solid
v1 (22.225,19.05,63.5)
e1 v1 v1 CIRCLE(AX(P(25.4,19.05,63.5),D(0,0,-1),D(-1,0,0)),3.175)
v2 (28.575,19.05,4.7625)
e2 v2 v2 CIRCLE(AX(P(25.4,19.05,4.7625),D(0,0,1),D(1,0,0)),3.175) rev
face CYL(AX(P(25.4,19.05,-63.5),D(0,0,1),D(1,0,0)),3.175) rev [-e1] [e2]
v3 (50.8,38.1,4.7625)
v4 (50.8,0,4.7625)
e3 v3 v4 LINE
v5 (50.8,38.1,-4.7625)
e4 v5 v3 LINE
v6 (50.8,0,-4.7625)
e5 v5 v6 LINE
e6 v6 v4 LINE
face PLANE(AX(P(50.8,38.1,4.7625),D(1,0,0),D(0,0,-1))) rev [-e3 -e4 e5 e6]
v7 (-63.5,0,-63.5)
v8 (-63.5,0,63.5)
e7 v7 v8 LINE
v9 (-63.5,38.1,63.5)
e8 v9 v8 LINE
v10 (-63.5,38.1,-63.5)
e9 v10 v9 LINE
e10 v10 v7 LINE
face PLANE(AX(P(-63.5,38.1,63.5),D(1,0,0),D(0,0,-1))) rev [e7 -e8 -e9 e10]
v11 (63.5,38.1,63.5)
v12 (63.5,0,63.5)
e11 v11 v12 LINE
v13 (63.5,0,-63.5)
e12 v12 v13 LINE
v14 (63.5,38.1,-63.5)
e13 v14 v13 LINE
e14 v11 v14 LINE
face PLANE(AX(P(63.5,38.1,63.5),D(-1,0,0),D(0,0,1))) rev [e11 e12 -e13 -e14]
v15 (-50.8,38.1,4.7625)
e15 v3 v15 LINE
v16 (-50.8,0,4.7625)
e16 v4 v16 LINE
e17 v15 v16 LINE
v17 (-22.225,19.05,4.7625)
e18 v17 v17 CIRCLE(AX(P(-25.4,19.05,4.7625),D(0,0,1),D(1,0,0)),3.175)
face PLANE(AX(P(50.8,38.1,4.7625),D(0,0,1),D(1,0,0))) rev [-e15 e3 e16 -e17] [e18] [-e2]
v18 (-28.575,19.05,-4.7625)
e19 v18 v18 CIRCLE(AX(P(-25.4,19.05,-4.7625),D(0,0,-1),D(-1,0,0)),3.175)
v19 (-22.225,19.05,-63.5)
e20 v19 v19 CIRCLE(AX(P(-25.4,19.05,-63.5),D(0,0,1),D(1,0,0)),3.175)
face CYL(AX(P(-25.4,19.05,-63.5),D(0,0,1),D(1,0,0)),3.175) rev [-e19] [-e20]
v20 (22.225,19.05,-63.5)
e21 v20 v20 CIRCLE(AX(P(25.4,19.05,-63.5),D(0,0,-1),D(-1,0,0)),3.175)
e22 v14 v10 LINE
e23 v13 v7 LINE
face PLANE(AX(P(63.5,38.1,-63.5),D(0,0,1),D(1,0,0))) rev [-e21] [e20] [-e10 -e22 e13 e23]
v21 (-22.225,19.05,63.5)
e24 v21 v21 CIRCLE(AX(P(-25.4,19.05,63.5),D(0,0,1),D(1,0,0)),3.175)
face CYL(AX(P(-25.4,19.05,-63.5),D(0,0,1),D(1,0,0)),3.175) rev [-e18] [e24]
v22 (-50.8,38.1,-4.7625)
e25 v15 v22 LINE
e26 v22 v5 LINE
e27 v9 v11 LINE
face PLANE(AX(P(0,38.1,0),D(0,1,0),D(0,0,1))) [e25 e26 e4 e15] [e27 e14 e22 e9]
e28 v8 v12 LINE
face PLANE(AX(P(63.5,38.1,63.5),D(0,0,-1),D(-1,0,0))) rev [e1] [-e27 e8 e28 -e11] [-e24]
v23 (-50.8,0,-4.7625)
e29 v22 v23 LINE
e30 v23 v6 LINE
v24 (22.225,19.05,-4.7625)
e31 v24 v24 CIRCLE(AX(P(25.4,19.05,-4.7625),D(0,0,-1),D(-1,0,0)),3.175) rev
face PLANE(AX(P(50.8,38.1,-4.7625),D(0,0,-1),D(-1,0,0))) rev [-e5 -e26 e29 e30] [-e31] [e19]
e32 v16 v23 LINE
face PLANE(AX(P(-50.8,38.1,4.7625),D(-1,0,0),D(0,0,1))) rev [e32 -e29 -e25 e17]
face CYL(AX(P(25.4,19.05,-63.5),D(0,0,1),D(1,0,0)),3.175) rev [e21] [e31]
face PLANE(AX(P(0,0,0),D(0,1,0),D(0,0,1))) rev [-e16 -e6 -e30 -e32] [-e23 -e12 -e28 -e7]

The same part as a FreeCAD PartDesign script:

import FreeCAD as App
import Part
import Sketcher
Q = App.Units.Quantity


def add_polygon(sketch, points):
    """Adds a closed chain of lines whose ends are joined by coincident constraints."""
    first, n = sketch.GeometryCount, len(points)
    for a, b in zip(points, points[1:] + points[:1]):
        sketch.addGeometry(Part.LineSegment(App.Vector(*a, 0), App.Vector(*b, 0)), False)
    for i in range(n):
        sketch.addConstraint(Sketcher.Constraint("Coincident", first + i, 2, first + (i + 1) % n, 1))

doc = App.newDocument("Part")
body = doc.addObject("PartDesign::Body", "Body")

sketch1 = body.newObject("Sketcher::SketchObject", "Sketch")
sketch1.AttachmentSupport = (doc.getObject("XZ_Plane"), [""])
sketch1.MapMode = "FlatFace"
add_polygon(sketch1, [(-64, -64), (-64, 64), (64, 64), (64, -64)])
sketch1.addConstraint(Sketcher.Constraint("Vertical", 0))
sketch1.addConstraint(Sketcher.Constraint("Horizontal", 1))
sketch1.addConstraint(Sketcher.Constraint("Vertical", 2))
sketch1.addConstraint(Sketcher.Constraint("Horizontal", 3))
sketch1.addConstraint(Sketcher.Constraint("Symmetric", 0, 2, 2, 2, -1, 1))
sketch1.addConstraint(Sketcher.Constraint("Equal", 3, 0))
sketch1.addConstraint(Sketcher.Constraint("DistanceX", 1, 1, 1, 2, Q("5 in")))
pad1 = body.newObject("PartDesign::Pad", "Pad")
pad1.Profile = sketch1
pad1.Length = Q("1.5 in")
pad1.Reversed = True

sketch2 = body.newObject("Sketcher::SketchObject", "Sketch001")
sketch2.AttachmentSupport = (doc.getObject("XZ_Plane"), [""])
sketch2.MapMode = "FlatFace"
add_polygon(sketch2, [(51, -5), (51, 5), (-51, 5), (-51, -5)])
sketch2.addConstraint(Sketcher.Constraint("Vertical", 0))
sketch2.addConstraint(Sketcher.Constraint("Horizontal", 1))
sketch2.addConstraint(Sketcher.Constraint("Vertical", 2))
sketch2.addConstraint(Sketcher.Constraint("Horizontal", 3))
sketch2.addConstraint(Sketcher.Constraint("Symmetric", 0, 2, 2, 2, -1, 1))
sketch2.addConstraint(Sketcher.Constraint("DistanceX", 1, 2, 1, 1, Q("4 in")))
sketch2.addConstraint(Sketcher.Constraint("DistanceY", 0, 1, 0, 2, Q("0.375 in")))
pocket1 = body.newObject("PartDesign::Pocket", "Pocket")
pocket1.Profile = sketch2
pocket1.Type = "ThroughAll"

sketch3 = body.newObject("Sketcher::SketchObject", "Sketch002")
sketch3.AttachmentSupport = (doc.getObject("XY_Plane"), [""])
sketch3.MapMode = "FlatFace"
sketch3.AttachmentOffset = App.Placement(App.Vector(0, 0, 2.5 * 25.4), App.Rotation())
sketch3.addGeometry(Part.Circle(App.Vector(-25.4, 19.1, 0), App.Vector(0, 0, 1), 3.2), False)
sketch3.addGeometry(Part.Circle(App.Vector(25.4, 19.1, 0), App.Vector(0, 0, 1), 3.2), False)
sketch3.addConstraint(Sketcher.Constraint("Equal", 0, 1))
sketch3.addConstraint(Sketcher.Constraint("Symmetric", 0, 3, 1, 3, -2))
sketch3.addConstraint(Sketcher.Constraint("Diameter", 0, Q("0.25 in")))
sketch3.addConstraint(Sketcher.Constraint("DistanceX", 0, 3, -1, 1, Q("1 in")))
sketch3.addConstraint(Sketcher.Constraint("DistanceY", -1, 1, 0, 3, Q("0.75 in")))
pocket2 = body.newObject("PartDesign::Pocket", "Pocket001")
pocket2.Profile = sketch3
pocket2.Type = "ThroughAll"

doc.recompute()
